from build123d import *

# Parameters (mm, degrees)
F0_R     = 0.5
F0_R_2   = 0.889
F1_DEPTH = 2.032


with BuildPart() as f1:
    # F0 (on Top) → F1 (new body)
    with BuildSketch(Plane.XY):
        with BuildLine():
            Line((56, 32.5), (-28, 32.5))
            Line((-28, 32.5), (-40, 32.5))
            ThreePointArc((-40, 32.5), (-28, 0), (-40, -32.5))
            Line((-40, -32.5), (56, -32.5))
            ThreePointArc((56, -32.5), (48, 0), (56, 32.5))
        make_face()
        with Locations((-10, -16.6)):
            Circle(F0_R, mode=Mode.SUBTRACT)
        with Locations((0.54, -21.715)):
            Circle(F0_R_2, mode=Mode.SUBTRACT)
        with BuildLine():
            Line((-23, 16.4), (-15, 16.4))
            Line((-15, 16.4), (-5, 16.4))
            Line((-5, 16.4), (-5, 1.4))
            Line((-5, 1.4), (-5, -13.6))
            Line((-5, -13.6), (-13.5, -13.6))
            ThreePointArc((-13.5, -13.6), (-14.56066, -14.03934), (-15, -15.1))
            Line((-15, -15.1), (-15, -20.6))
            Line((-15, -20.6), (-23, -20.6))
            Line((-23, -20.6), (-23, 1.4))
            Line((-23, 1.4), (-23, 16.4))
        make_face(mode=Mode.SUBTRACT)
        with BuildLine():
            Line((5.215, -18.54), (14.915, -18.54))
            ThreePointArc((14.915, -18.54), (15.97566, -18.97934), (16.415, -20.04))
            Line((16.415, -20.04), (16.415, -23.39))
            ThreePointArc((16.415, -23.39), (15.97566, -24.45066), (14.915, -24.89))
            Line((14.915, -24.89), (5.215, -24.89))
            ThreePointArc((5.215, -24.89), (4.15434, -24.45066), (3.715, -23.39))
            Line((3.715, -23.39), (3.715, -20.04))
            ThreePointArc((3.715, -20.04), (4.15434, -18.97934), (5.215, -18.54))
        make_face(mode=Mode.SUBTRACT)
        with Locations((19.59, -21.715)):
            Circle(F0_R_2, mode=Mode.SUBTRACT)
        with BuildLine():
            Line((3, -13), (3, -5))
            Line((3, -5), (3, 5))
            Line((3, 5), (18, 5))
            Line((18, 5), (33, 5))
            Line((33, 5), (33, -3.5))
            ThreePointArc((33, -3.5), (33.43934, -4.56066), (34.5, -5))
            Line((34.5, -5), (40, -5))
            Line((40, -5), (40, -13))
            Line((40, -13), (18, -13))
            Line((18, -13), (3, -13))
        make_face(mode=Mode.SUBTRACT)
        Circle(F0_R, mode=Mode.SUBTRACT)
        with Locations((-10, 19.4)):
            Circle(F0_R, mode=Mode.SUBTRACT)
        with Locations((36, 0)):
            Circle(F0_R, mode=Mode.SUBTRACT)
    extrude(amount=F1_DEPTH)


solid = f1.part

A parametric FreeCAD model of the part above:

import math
import FreeCAD as App
import Part
import Sketcher
from FreeCAD import Vector

doc = App.newDocument("Part")
body = doc.addObject("PartDesign::Body", "Body")

sketch1 = body.newObject("Sketcher::SketchObject", "Sketch")
sketch1.AttachmentSupport = (doc.getObject("XY_Plane"), [""])
sketch1.MapMode = "FlatFace"
sketch1.addGeometry([
    Part.LineSegment(Vector(56, 32.5, 0), Vector(-40, 32.5, 0)),
    Part.ArcOfCircle(Part.Circle(Vector(-78, 0, 0), Vector(0, 0, 1), 50), math.radians(-41), math.radians(41)),
    Part.LineSegment(Vector(-40, -32.5, 0), Vector(56, -32.5, 0)),
    Part.ArcOfCircle(Part.Circle(Vector(118, 0, 0), Vector(0, 0, 1), 70), math.radians(152), math.radians(208)),
    Part.Circle(Vector(-10, -16.6, 0), Vector(0, 0, 1), 0.5),
    Part.Circle(Vector(0.5, -21.7, 0), Vector(0, 0, 1), 0.9),
    Part.ArcOfCircle(Part.Circle(Vector(5.2, -20, 0), Vector(0, 0, 1), 1.5), math.radians(90), math.radians(180)),
    Part.LineSegment(Vector(5.2, -18.5, 0), Vector(14.9, -18.5, 0)),
    Part.ArcOfCircle(Part.Circle(Vector(14.9, -20, 0), Vector(0, 0, 1), 1.5), math.radians(0), math.radians(90)),
    Part.LineSegment(Vector(16.4, -20, 0), Vector(16.4, -23.4, 0)),
    Part.ArcOfCircle(Part.Circle(Vector(14.9, -23.4, 0), Vector(0, 0, 1), 1.5), math.radians(-90), math.radians(0)),
    Part.LineSegment(Vector(14.9, -24.9, 0), Vector(5.2, -24.9, 0)),
    Part.ArcOfCircle(Part.Circle(Vector(5.2, -23.4, 0), Vector(0, 0, 1), 1.5), math.radians(-180), math.radians(-90)),
    Part.LineSegment(Vector(3.7, -23.4, 0), Vector(3.7, -20, 0)),
    Part.Circle(Vector(19.6, -21.7, 0), Vector(0, 0, 1), 0.9),
    Part.LineSegment(Vector(40, -13, 0), Vector(3, -13, 0)),
    Part.LineSegment(Vector(3, -13, 0), Vector(3, 5, 0)),
    Part.LineSegment(Vector(3, 5, 0), Vector(33, 5, 0)),
    Part.LineSegment(Vector(33, 5, 0), Vector(33, -3.5, 0)),
    Part.ArcOfCircle(Part.Circle(Vector(34.5, -3.5, 0), Vector(0, 0, 1), 1.5), math.radians(-180), math.radians(-90)),
    Part.LineSegment(Vector(34.5, -5, 0), Vector(40, -5, 0)),
    Part.LineSegment(Vector(40, -5, 0), Vector(40, -13, 0)),
    Part.LineSegment(Vector(-23, -20.6, 0), Vector(-23, 16.4, 0)),
    Part.LineSegment(Vector(-23, 16.4, 0), Vector(-5, 16.4, 0)),
    Part.LineSegment(Vector(-5, 16.4, 0), Vector(-5, -13.6, 0)),
    Part.LineSegment(Vector(-5, -13.6, 0), Vector(-13.5, -13.6, 0)),
    Part.ArcOfCircle(Part.Circle(Vector(-13.5, -15.1, 0), Vector(0, 0, 1), 1.5), math.radians(90), math.radians(180)),
    Part.LineSegment(Vector(-15, -15.1, 0), Vector(-15, -20.6, 0)),
    Part.LineSegment(Vector(-15, -20.6, 0), Vector(-23, -20.6, 0)),
    Part.Circle(Vector(0, 0, 0), Vector(0, 0, 1), 0.5),
    Part.Circle(Vector(-10, 19.4, 0), Vector(0, 0, 1), 0.5),
    Part.Circle(Vector(36, 0, 0), Vector(0, 0, 1), 0.5),
], False)
sketch1.addConstraint([
    Sketcher.Constraint("Coincident", 0, 2, 1, 2),
    Sketcher.Constraint("Coincident", 1, 1, 2, 1),
    Sketcher.Constraint("Coincident", 2, 2, 3, 2),
    Sketcher.Constraint("Coincident", 3, 1, 0, 1),
    Sketcher.Constraint("Tangent", 6, 1, 7, 1),
    Sketcher.Constraint("Tangent", 7, 2, 8, 2),
    Sketcher.Constraint("Tangent", 8, 1, 9, 1),
    Sketcher.Constraint("Tangent", 9, 2, 10, 2),
    Sketcher.Constraint("Tangent", 10, 1, 11, 1),
    Sketcher.Constraint("Tangent", 11, 2, 12, 2),
    Sketcher.Constraint("Tangent", 12, 1, 13, 1),
    Sketcher.Constraint("Tangent", 13, 2, 6, 2),
    Sketcher.Constraint("Coincident", 15, 2, 16, 1),
    Sketcher.Constraint("Coincident", 16, 2, 17, 1),
    Sketcher.Constraint("Coincident", 17, 2, 18, 1),
    Sketcher.Constraint("Tangent", 18, 2, 19, 1),
    Sketcher.Constraint("Tangent", 19, 2, 20, 1),
    Sketcher.Constraint("Coincident", 20, 2, 21, 1),
    Sketcher.Constraint("Coincident", 21, 2, 15, 1),
    Sketcher.Constraint("Coincident", 22, 2, 23, 1),
    Sketcher.Constraint("Coincident", 23, 2, 24, 1),
    Sketcher.Constraint("Coincident", 24, 2, 25, 1),
    Sketcher.Constraint("Tangent", 25, 2, 26, 1),
    Sketcher.Constraint("Tangent", 26, 2, 27, 1),
    Sketcher.Constraint("Coincident", 27, 2, 28, 1),
    Sketcher.Constraint("Coincident", 28, 2, 22, 1),
    Sketcher.Constraint("Horizontal", 0),
    Sketcher.Constraint("Horizontal", 2),
    Sketcher.Constraint("Horizontal", 7),
    Sketcher.Constraint("Vertical", 9),
    Sketcher.Constraint("Horizontal", 11),
    Sketcher.Constraint("Vertical", 13),
    Sketcher.Constraint("Horizontal", 15),
    Sketcher.Constraint("Vertical", 16),
    Sketcher.Constraint("Horizontal", 17),
    Sketcher.Constraint("Vertical", 18),
    Sketcher.Constraint("Horizontal", 20),
    Sketcher.Constraint("Vertical", 21),
    Sketcher.Constraint("Vertical", 22),
    Sketcher.Constraint("Horizontal", 23),
    Sketcher.Constraint("Vertical", 24),
    Sketcher.Constraint("Horizontal", 25),
    Sketcher.Constraint("Vertical", 27),
    Sketcher.Constraint("Horizontal", 28),
    Sketcher.Constraint("Coincident", 29, 3, -1, 1),
    Sketcher.Constraint("Equal", 6, 8),
    Sketcher.Constraint("Equal", 8, 10),
    Sketcher.Constraint("Equal", 10, 12),
    Sketcher.Constraint("Equal", 5, 14),
    Sketcher.Constraint("Equal", 12, 19),
    Sketcher.Constraint("Equal", 19, 26),
    Sketcher.Constraint("Equal", 4, 29),
    Sketcher.Constraint("Equal", 29, 30),
    Sketcher.Constraint("Equal", 30, 31),
    Sketcher.Constraint("Symmetric", 0, 2, 1, 1, -1),
    Sketcher.Constraint("PointOnObject", 3, 3, -1),
    Sketcher.Constraint("PointOnObject", 31, 3, -1),
    Sketcher.Constraint("Horizontal", 5, 3, 14, 3),
    Sketcher.Constraint("Vertical", 4, 3, 30, 3),
    Sketcher.Constraint("Equal", 23, 16),
    Sketcher.Constraint("Equal", 25, 18),
    Sketcher.Constraint("Equal", 15, 22),
    Sketcher.Constraint("Equal", 17, 24),
    Sketcher.Constraint("Diameter", 4, 1.0),
    Sketcher.Constraint("Radius", 6, 1.500001),
    Sketcher.Constraint("DistanceX", 0, 2, 0, 1, 96.0),
    Sketcher.Constraint("DistanceX", 15, 2, 15, 1, 37.0),
    Sketcher.Constraint("DistanceX", 17, 1, 17, 2, 30.0),
    Sketcher.Constraint("DistanceX", 23, 1, 23, 2, 18.0),
    Sketcher.Constraint("DistanceX", 28, 2, 28, 1, 8.0),
    Sketcher.Constraint("Diameter", 5, 1.778),
    Sketcher.Constraint("DistanceX", 7, 1, 7, 2, 9.7),
    Sketcher.Constraint("DistanceX", 4, 3, -1, 1, 10.0),
    Sketcher.Constraint("DistanceX", -1, 1, 31, 3, 36.0),
    Sketcher.Constraint("DistanceX", 0, 2, -1, 1, 40.0),
    Sketcher.Constraint("DistanceX", -1, 1, 15, 2, 3.0),
    Sketcher.Constraint("DistanceY", 15, 2, -1, 1, 13.0),
    Sketcher.Constraint("DistanceX", 22, 2, -1, 1, 23.0),
    Sketcher.Constraint("DistanceY", 4, 3, 30, 3, 36.0),
    Sketcher.Constraint("DistanceY", 2, 2, 19, 3, 29.000001),
    Sketcher.Constraint("DistanceY", 22, 2, 30, 3, 3.0),
    Sketcher.Constraint("DistanceY", 9, 2, 9, 1, 3.35),
    Sketcher.Constraint("DistanceY", 4, 3, -1, 1, 16.6),
    Sketcher.Constraint("DistanceX", -1, 1, 5, 3, 0.54),
    Sketcher.Constraint("DistanceY", 6, 3, -1, 1, 20.040001),
    Sketcher.Constraint("DistanceX", -1, 1, 14, 3, 19.59),
    Sketcher.Constraint("DistanceY", 5, 3, -1, 1, 21.715),
    Sketcher.Constraint("DistanceX", -1, 1, 6, 3, 5.215001),
    Sketcher.Constraint("Radius", 1, 50.010417),
    Sketcher.Constraint("Radius", 3, 70.015625),
])
pad1 = body.newObject("PartDesign::Pad", "Pad")
pad1.Profile = sketch1
pad1.Length = 2.032

doc.recompute()
